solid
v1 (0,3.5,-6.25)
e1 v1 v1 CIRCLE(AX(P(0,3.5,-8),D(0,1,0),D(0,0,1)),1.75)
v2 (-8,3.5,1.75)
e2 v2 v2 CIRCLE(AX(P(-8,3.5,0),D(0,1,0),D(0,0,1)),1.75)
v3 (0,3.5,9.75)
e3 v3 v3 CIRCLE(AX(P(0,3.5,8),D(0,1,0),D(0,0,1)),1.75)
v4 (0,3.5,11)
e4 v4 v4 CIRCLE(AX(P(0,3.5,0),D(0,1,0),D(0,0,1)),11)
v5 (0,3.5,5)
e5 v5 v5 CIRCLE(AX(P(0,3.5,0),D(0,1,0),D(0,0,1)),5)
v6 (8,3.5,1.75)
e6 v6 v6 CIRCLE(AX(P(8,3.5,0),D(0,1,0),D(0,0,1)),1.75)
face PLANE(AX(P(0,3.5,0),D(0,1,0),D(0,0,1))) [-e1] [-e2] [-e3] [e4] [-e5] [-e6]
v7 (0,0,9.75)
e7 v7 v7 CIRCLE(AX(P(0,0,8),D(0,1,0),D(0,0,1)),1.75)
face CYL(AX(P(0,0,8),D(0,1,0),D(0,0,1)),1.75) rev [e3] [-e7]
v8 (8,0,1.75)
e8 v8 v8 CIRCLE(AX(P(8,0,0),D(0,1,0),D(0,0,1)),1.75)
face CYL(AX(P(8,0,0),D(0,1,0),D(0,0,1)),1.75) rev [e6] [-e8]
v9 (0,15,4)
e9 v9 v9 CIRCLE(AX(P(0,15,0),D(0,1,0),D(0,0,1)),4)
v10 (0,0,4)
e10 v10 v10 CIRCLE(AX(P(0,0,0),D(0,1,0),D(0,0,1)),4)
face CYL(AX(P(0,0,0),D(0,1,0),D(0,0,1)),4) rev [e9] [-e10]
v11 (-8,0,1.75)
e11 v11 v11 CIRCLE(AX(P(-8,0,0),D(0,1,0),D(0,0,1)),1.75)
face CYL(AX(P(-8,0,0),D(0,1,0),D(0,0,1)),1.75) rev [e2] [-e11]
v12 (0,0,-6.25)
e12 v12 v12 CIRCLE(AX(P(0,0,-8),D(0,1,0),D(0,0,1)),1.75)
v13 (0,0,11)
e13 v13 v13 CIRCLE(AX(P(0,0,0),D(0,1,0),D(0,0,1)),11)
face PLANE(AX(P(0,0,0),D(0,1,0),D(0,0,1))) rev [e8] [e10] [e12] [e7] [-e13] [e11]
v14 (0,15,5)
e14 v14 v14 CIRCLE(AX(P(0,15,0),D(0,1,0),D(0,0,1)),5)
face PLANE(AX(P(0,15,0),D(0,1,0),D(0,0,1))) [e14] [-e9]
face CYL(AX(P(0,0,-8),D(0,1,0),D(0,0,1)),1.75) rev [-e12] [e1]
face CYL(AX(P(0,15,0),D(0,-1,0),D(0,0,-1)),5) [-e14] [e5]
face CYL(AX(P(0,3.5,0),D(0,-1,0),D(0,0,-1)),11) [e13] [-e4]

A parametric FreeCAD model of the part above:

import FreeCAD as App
import Part
import Sketcher
from FreeCAD import Vector

doc = App.newDocument("Part")
params = doc.addObject("Spreadsheet::Sheet", "Params")
for row, (alias, value) in enumerate([
    ("sketch1_diameter", "22 mm"),
    ("pad1_length", "3.5 mm"),
    ("sketch2_diameter", "10 mm"),
    ("pad2_length", "11.5 mm"),
    ("sketch3_diameter", "8 mm"),
    ("sketch4_diameter", "3.5 mm"),
], start=1):
    params.set(f"A{row}", alias)
    params.set(f"B{row}", "=" + value)
    params.setAlias(f"B{row}", alias)

body = doc.addObject("PartDesign::Body", "Body")

sketch1 = doc.addObject("Sketcher::SketchObject", "Sketch")
body.addObject(sketch1)
sketch1.AttachmentSupport = (doc.XZ_Plane, [""])
sketch1.MapMode = "FlatFace"
sketch1.addGeometry(Part.Circle(Vector(0, 0, 0), Vector(0, 0, 1), 11), False)
sketch1.addConstraint([
    Sketcher.Constraint("Coincident", 0, 3, -1, 1),
    Sketcher.Constraint("Diameter", 0, 22.0),
])
sketch1.setExpression("Constraints[1]", "Params.sketch1_diameter")
pad1 = doc.addObject("PartDesign::Pad", "Pad")
body.addObject(pad1)
pad1.Profile = sketch1
pad1.setExpression("Length", "Params.pad1_length")
pad1.Reversed = True

sketch2 = doc.addObject("Sketcher::SketchObject", "Sketch001")
body.addObject(sketch2)
sketch2.AttachmentSupport = (doc.XZ_Plane, [""])
sketch2.MapMode = "FlatFace"
sketch2.AttachmentOffset = App.Placement(Vector(0, 0, -3.5), App.Rotation())
sketch2.addGeometry(Part.Circle(Vector(0, 0, 0), Vector(0, 0, 1), 5), False)
sketch2.addConstraint([
    Sketcher.Constraint("Coincident", 0, 3, -1, 1),
    Sketcher.Constraint("Diameter", 0, 10.0),
])
sketch2.setExpression("Constraints[1]", "Params.sketch2_diameter")
pad2 = doc.addObject("PartDesign::Pad", "Pad001")
body.addObject(pad2)
pad2.Profile = sketch2
pad2.setExpression("Length", "Params.pad2_length")
pad2.Reversed = True

sketch3 = doc.addObject("Sketcher::SketchObject", "Sketch002")
body.addObject(sketch3)
sketch3.AttachmentSupport = (doc.XZ_Plane, [""])
sketch3.MapMode = "FlatFace"
sketch3.AttachmentOffset = App.Placement(Vector(0, 0, -15), App.Rotation())
sketch3.addGeometry(Part.Circle(Vector(0, 0, 0), Vector(0, 0, 1), 4), False)
sketch3.addConstraint([
    Sketcher.Constraint("Coincident", 0, 3, -1, 1),
    Sketcher.Constraint("Diameter", 0, 8.0),
])
sketch3.setExpression("Constraints[1]", "Params.sketch3_diameter")
pocket1 = doc.addObject("PartDesign::Pocket", "Pocket")
body.addObject(pocket1)
pocket1.Profile = sketch3
pocket1.Type = "ThroughAll"
pocket1.Reversed = True

sketch4 = doc.addObject("Sketcher::SketchObject", "Sketch003")
body.addObject(sketch4)
sketch4.AttachmentSupport = (doc.XZ_Plane, [""])
sketch4.MapMode = "FlatFace"
sketch4.AttachmentOffset = App.Placement(Vector(0, 0, -3.5), App.Rotation())
sketch4.addGeometry([
    Part.Circle(Vector(0, -8, 0), Vector(0, 0, 1), 1.8),
    Part.Circle(Vector(8, 0, 0), Vector(0, 0, 1), 1.8),
    Part.Circle(Vector(0, 8, 0), Vector(0, 0, 1), 1.8),
    Part.Circle(Vector(-8, 0, 0), Vector(0, 0, 1), 1.8),
], False)
sketch4.addConstraint([
    Sketcher.Constraint("Equal", 0, 1),
    Sketcher.Constraint("Equal", 1, 2),
    Sketcher.Constraint("Equal", 2, 3),
    Sketcher.Constraint("Symmetric", 0, 3, 2, 3, -1, 1),
    Sketcher.Constraint("Symmetric", 1, 3, 3, 3, -1, 1),
    Sketcher.Constraint("PointOnObject", 0, 3, -2),
    Sketcher.Constraint("PointOnObject", 1, 3, -1),
    Sketcher.Constraint("Diameter", 0, 3.5),
    Sketcher.Constraint("DistanceY", 0, 3, -1, 1, 8.0),
    Sketcher.Constraint("DistanceX", -1, 1, 1, 3, 8.0),
])
sketch4.setExpression("Constraints[7]", "Params.sketch4_diameter")
pocket2 = doc.addObject("PartDesign::Pocket", "Pocket001")
body.addObject(pocket2)
pocket2.Profile = sketch4
pocket2.Type = "ThroughAll"
pocket2.Reversed = True

doc.recompute()
